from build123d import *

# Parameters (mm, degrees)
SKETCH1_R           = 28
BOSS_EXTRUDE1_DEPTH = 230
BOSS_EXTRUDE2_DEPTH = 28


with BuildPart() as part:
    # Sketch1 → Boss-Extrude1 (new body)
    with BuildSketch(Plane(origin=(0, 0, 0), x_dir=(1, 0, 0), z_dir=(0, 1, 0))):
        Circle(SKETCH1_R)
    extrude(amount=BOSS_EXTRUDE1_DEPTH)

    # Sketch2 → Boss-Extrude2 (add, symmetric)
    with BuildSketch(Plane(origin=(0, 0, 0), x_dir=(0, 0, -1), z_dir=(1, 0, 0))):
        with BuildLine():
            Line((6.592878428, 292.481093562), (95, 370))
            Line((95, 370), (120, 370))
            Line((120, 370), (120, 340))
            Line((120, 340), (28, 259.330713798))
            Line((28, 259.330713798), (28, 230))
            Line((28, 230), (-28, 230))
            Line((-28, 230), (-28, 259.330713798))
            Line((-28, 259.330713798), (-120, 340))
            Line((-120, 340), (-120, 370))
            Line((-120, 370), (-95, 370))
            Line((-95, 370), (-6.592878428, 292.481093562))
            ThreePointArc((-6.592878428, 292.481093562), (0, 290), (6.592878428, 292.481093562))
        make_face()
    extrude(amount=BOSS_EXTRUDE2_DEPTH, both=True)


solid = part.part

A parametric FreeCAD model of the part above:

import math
import FreeCAD as App
import Part
import Sketcher

V = App.Vector

doc = App.newDocument("Part")
body = doc.addObject("PartDesign::Body", "Body")

sketch1 = body.newObject("Sketcher::SketchObject", "Sketch")
sketch1.AttachmentSupport = (doc.getObject("XZ_Plane"), [""])
sketch1.MapMode = "FlatFace"
sketch1.addGeometry(Part.Circle(V(0, 0, 0), V(0, 0, 1), 28), False)
sketch1.addConstraint(Sketcher.Constraint("Coincident", 0, 3, -1, 1))
sketch1.addConstraint(Sketcher.Constraint("Diameter", 0, 56.0))
pad1 = body.newObject("PartDesign::Pad", "Pad")
pad1.Profile = sketch1
pad1.Length = 230
pad1.Reversed = True

sketch2 = body.newObject("Sketcher::SketchObject", "Sketch001")
sketch2.AttachmentSupport = (doc.getObject("YZ_Plane"), [""])
sketch2.MapMode = "FlatFace"
sketch2.addGeometry(Part.LineSegment(V(370, -95, 0), V(292, -7, 0)), False)
sketch2.addGeometry(Part.ArcOfCircle(Part.Circle(V(300, 0, 0), V(0, 0, 1), 10), math.radians(139), math.radians(221)), False)
sketch2.addGeometry(Part.LineSegment(V(292, 7, 0), V(370, 95, 0)), False)
sketch2.addGeometry(Part.LineSegment(V(370, 95, 0), V(370, 120, 0)), False)
sketch2.addGeometry(Part.LineSegment(V(370, 120, 0), V(340, 120, 0)), False)
sketch2.addGeometry(Part.LineSegment(V(340, 120, 0), V(259, 28, 0)), False)
sketch2.addGeometry(Part.LineSegment(V(259, 28, 0), V(230, 28, 0)), False)
sketch2.addGeometry(Part.LineSegment(V(230, 28, 0), V(230, -28, 0)), False)
sketch2.addGeometry(Part.LineSegment(V(230, -28, 0), V(259, -28, 0)), False)
sketch2.addGeometry(Part.LineSegment(V(259, -28, 0), V(340, -120, 0)), False)
sketch2.addGeometry(Part.LineSegment(V(340, -120, 0), V(370, -120, 0)), False)
sketch2.addGeometry(Part.LineSegment(V(370, -120, 0), V(370, -95, 0)), False)
sketch2.addConstraint(Sketcher.Constraint("Tangent", 0, 2, 1, 2))
sketch2.addConstraint(Sketcher.Constraint("Tangent", 1, 1, 2, 1))
sketch2.addConstraint(Sketcher.Constraint("Coincident", 2, 2, 3, 1))
sketch2.addConstraint(Sketcher.Constraint("Coincident", 3, 2, 4, 1))
sketch2.addConstraint(Sketcher.Constraint("Coincident", 4, 2, 5, 1))
sketch2.addConstraint(Sketcher.Constraint("Coincident", 5, 2, 6, 1))
sketch2.addConstraint(Sketcher.Constraint("Coincident", 6, 2, 7, 1))
sketch2.addConstraint(Sketcher.Constraint("Coincident", 7, 2, 8, 1))
sketch2.addConstraint(Sketcher.Constraint("Coincident", 8, 2, 9, 1))
sketch2.addConstraint(Sketcher.Constraint("Coincident", 9, 2, 10, 1))
sketch2.addConstraint(Sketcher.Constraint("Coincident", 10, 2, 11, 1))
sketch2.addConstraint(Sketcher.Constraint("Coincident", 11, 2, 0, 1))
sketch2.addConstraint(Sketcher.Constraint("Vertical", 3))
sketch2.addConstraint(Sketcher.Constraint("Horizontal", 4))
sketch2.addConstraint(Sketcher.Constraint("Horizontal", 6))
sketch2.addConstraint(Sketcher.Constraint("Vertical", 7))
sketch2.addConstraint(Sketcher.Constraint("Horizontal", 8))
sketch2.addConstraint(Sketcher.Constraint("Horizontal", 10))
sketch2.addConstraint(Sketcher.Constraint("Vertical", 11))
sketch2.addConstraint(Sketcher.Constraint("Symmetric", 0, 2, 1, 1, -1))
sketch2.addConstraint(Sketcher.Constraint("Symmetric", 5, 2, 8, 2, -1))
sketch2.addConstraint(Sketcher.Constraint("Symmetric", 4, 2, 9, 2, -1))
sketch2.addConstraint(Sketcher.Constraint("Parallel", 2, 5))
sketch2.addConstraint(Sketcher.Constraint("Vertical", 3, 2, 10, 2))
sketch2.addConstraint(Sketcher.Constraint("Radius", 1, 10.0))
sketch2.addConstraint(Sketcher.Constraint("DistanceX", 4, 2, 4, 1, 30.0))
sketch2.addConstraint(Sketcher.Constraint("DistanceY", 3, 1, 3, 2, 25.0))
sketch2.addConstraint(Sketcher.Constraint("DistanceY", 7, 2, 7, 1, 56.0))
sketch2.addConstraint(Sketcher.Constraint("DistanceX", -1, 1, 1, 3, 300.0))
sketch2.addConstraint(Sketcher.Constraint("DistanceX", -1, 1, 2, 2, 370.0))
sketch2.addConstraint(Sketcher.Constraint("DistanceY", -1, 1, 2, 2, 95.0))
sketch2.addConstraint(Sketcher.Constraint("DistanceX", -1, 1, 6, 2, 230.0))
pad2 = body.newObject("PartDesign::Pad", "Pad001")
pad2.Profile = sketch2
pad2.Length = 56
pad2.Midplane = True

doc.recompute()
